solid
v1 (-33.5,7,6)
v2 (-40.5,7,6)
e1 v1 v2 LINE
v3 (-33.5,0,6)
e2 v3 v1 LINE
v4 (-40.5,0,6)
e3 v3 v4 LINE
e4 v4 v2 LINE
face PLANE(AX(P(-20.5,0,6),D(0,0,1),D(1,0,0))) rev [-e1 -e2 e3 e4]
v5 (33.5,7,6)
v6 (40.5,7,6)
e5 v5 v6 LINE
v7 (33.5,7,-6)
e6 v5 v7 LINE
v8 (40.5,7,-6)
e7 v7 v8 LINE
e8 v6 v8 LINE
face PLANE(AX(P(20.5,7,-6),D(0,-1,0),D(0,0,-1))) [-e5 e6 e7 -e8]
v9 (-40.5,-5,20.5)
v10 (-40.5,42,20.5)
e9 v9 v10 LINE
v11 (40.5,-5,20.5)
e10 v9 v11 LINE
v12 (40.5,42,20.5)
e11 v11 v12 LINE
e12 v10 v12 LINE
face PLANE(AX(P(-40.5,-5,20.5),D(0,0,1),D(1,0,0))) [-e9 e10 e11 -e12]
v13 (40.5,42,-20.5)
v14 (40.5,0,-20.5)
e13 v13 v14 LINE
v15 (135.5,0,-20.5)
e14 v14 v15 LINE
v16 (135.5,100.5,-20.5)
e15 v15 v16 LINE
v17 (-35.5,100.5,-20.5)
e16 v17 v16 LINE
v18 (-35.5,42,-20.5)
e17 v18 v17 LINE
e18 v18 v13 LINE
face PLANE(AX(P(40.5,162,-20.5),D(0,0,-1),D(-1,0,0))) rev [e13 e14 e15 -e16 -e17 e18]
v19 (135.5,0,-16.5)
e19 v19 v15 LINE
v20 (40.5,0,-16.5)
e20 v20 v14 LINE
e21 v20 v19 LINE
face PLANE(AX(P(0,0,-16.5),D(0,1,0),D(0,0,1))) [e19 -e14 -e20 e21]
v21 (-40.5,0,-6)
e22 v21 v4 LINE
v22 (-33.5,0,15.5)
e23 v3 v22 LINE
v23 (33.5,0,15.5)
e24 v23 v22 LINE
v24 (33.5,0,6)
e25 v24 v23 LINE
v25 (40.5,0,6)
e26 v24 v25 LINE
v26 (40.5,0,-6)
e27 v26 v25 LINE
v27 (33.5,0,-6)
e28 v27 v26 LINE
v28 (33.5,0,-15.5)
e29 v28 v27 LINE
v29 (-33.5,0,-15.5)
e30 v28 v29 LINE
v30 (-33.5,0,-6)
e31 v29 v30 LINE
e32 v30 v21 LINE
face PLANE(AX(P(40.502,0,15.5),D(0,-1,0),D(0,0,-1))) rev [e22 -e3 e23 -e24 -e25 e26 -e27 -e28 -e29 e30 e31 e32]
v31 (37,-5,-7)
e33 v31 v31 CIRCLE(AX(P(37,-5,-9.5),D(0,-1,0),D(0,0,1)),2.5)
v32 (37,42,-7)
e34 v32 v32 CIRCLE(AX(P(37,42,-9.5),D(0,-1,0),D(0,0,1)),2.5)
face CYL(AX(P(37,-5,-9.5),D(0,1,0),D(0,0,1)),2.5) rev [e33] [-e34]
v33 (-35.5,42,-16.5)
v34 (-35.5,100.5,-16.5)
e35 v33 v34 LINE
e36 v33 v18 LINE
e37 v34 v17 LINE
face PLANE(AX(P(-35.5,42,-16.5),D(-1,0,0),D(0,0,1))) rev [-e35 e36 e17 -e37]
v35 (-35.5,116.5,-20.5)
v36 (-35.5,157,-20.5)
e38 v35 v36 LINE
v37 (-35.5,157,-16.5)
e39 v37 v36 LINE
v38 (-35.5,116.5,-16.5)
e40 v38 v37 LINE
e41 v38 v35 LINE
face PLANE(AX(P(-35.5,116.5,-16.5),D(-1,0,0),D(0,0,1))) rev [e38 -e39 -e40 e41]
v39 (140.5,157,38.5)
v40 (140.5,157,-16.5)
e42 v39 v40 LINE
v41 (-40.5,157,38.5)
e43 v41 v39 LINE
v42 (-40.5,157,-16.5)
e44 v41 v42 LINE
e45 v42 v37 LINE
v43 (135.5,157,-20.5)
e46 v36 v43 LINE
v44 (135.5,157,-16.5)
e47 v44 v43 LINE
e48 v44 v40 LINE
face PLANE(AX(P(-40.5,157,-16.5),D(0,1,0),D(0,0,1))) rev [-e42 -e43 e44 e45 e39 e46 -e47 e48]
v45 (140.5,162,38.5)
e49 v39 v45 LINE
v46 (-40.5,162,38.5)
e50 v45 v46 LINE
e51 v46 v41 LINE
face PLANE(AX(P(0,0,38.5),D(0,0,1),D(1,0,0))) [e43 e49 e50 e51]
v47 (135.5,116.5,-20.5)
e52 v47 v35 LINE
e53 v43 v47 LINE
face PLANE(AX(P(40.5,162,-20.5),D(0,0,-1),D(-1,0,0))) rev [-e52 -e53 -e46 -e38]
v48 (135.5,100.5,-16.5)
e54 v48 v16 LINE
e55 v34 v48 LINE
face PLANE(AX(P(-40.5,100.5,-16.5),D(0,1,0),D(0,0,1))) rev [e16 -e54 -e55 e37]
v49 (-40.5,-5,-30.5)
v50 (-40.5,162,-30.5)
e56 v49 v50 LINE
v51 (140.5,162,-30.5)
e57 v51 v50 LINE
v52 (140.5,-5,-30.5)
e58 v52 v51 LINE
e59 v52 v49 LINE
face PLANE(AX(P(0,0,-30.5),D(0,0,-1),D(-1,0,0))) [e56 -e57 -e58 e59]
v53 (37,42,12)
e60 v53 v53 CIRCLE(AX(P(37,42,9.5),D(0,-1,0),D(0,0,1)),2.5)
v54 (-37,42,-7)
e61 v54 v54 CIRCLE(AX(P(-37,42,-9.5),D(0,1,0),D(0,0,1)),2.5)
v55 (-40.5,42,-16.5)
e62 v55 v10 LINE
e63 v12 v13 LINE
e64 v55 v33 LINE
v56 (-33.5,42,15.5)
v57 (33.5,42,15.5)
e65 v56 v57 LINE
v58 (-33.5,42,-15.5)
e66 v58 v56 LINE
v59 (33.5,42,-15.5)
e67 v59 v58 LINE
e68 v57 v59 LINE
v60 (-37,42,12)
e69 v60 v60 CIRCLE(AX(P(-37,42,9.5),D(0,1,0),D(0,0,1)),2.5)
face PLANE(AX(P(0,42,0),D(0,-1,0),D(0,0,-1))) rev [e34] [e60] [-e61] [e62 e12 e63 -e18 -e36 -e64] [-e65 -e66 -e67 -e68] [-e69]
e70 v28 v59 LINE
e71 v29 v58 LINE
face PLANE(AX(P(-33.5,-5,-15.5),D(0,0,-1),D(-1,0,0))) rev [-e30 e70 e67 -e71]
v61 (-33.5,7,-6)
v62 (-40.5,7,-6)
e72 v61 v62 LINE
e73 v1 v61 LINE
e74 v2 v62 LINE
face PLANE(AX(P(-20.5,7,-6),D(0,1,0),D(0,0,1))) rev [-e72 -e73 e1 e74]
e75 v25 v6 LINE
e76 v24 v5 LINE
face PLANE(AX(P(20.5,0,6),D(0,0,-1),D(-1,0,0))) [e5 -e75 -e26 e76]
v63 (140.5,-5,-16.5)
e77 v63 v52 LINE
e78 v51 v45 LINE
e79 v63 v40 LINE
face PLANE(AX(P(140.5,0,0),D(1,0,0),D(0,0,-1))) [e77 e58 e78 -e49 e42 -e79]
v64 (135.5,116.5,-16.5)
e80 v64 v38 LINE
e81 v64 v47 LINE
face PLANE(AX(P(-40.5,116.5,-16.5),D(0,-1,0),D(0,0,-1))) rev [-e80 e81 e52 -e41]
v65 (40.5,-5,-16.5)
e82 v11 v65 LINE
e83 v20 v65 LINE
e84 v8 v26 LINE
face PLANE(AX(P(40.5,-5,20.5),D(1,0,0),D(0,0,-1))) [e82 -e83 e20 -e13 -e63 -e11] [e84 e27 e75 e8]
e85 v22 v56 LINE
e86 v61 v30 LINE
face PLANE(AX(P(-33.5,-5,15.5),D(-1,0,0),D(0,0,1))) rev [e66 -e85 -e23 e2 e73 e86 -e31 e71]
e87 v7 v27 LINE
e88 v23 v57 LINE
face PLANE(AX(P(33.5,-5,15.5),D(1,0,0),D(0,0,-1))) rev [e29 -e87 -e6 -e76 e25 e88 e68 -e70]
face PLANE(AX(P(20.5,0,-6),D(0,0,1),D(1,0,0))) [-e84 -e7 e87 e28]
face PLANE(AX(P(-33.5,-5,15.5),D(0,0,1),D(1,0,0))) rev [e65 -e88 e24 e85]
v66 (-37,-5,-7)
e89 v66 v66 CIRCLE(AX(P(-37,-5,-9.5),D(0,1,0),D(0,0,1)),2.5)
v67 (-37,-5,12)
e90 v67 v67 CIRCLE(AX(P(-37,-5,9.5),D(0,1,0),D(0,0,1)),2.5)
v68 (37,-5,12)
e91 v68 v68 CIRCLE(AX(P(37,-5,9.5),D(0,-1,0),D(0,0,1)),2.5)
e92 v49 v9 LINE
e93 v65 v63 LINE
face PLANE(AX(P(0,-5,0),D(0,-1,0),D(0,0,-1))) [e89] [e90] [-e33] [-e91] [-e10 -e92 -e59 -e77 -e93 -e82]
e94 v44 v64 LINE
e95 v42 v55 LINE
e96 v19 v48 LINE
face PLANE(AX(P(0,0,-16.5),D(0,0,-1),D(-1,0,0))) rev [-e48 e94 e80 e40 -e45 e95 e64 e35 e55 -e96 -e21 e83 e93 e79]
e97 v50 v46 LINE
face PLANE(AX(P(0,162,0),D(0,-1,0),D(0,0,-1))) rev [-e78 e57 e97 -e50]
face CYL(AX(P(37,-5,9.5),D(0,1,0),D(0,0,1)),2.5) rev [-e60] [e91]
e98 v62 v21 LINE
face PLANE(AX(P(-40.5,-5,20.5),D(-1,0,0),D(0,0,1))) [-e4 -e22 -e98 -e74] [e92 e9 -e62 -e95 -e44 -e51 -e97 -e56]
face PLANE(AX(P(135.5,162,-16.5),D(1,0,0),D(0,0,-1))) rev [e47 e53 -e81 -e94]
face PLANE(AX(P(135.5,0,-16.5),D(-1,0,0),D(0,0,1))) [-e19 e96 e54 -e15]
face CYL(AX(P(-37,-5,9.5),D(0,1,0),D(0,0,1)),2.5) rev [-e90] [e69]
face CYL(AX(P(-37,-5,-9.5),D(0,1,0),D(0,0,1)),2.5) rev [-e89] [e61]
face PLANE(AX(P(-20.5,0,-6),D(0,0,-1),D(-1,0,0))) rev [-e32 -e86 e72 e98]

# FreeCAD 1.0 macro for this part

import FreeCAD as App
import Part
import Sketcher
from FreeCAD import Vector

doc = App.newDocument("Part")
body = doc.addObject("PartDesign::Body", "Body")

# Sketch on XZ plane
sketch1 = body.newObject("Sketcher::SketchObject", "Sketch")
sketch1.AttachmentSupport = (doc.getObject("XZ_Plane"), [""])
sketch1.MapMode = "FlatFace"
sketch1.addGeometry([
    Part.LineSegment(Vector(-40, -20, 0), Vector(-40, 20, 0)),  # 0
    Part.LineSegment(Vector(-40, 20, 0), Vector(40, 20, 0)),  # 1
    Part.LineSegment(Vector(40, 20, 0), Vector(40, -20, 0)),  # 2
    Part.LineSegment(Vector(40, -20, 0), Vector(-40, -20, 0)),  # 3
    Part.LineSegment(Vector(34, 16, 0), Vector(-34, 16, 0)),  # 4
    Part.LineSegment(Vector(-34, 16, 0), Vector(-34, -16, 0)),  # 5
    Part.LineSegment(Vector(-34, -16, 0), Vector(34, -16, 0)),  # 6
    Part.LineSegment(Vector(34, -16, 0), Vector(34, 16, 0)),  # 7
], False)
sketch1.addConstraint([
    Sketcher.Constraint("Coincident", 0, 2, 1, 1),
    Sketcher.Constraint("Coincident", 1, 2, 2, 1),
    Sketcher.Constraint("Coincident", 2, 2, 3, 1),
    Sketcher.Constraint("Coincident", 3, 2, 0, 1),
    Sketcher.Constraint("Coincident", 4, 2, 5, 1),
    Sketcher.Constraint("Coincident", 5, 2, 6, 1),
    Sketcher.Constraint("Coincident", 6, 2, 7, 1),
    Sketcher.Constraint("Coincident", 7, 2, 4, 1),
    Sketcher.Constraint("Vertical", 0),
    Sketcher.Constraint("Horizontal", 1),
    Sketcher.Constraint("Vertical", 2),
    Sketcher.Constraint("Horizontal", 3),
    Sketcher.Constraint("Horizontal", 4),
    Sketcher.Constraint("Vertical", 5),
    Sketcher.Constraint("Horizontal", 6),
    Sketcher.Constraint("Vertical", 7),
    Sketcher.Constraint("Symmetric", 0, 2, 2, 2, -1, 1),
    Sketcher.Constraint("Symmetric", 4, 2, 6, 2, -1, 1),
    Sketcher.Constraint("DistanceX", 1, 1, 1, 2, 81.0),
    Sketcher.Constraint("DistanceX", 4, 2, 4, 1, 67.0),
    Sketcher.Constraint("DistanceY", 0, 1, 0, 2, 41.0),
    Sketcher.Constraint("DistanceY", 5, 2, 5, 1, 31.0),
])
pad1 = body.newObject("PartDesign::Pad", "Pad")
pad1.Profile = sketch1
pad1.Type = "TwoLengths"
pad1.Length = 42
pad1.Length2 = 5
pad1.Reversed = True

# Sketch on YZ plane
sketch2 = body.newObject("Sketcher::SketchObject", "Sketch001")
sketch2.AttachmentSupport = (doc.getObject("YZ_Plane"), [""])
sketch2.MapMode = "FlatFace"
sketch2.AttachmentOffset = App.Placement(Vector(0, 0, -33.5), App.Rotation())
sketch2.addGeometry([
    Part.LineSegment(Vector(0, 16, 0), Vector(-5, 16, 0)),
    Part.LineSegment(Vector(-5, 16, 0), Vector(-5, -16, 0)),
    Part.LineSegment(Vector(-5, -16, 0), Vector(0, -16, 0)),
    Part.LineSegment(Vector(0, -16, 0), Vector(0, 16, 0)),
], False)
sketch2.addConstraint([
    Sketcher.Constraint("Coincident", 0, 2, 1, 1),
    Sketcher.Constraint("Coincident", 1, 2, 2, 1),
    Sketcher.Constraint("Coincident", 2, 2, 3, 1),
    Sketcher.Constraint("Coincident", 3, 2, 0, 1),
    Sketcher.Constraint("Horizontal", 0),
    Sketcher.Constraint("Vertical", 1),
    Sketcher.Constraint("Horizontal", 2),
    Sketcher.Constraint("Vertical", 3),
    Sketcher.Constraint("Symmetric", 2, 2, 3, 2, -1, 1),
    Sketcher.Constraint("DistanceX", 0, 2, 0, 1, 5.0),
    Sketcher.Constraint("DistanceY", 1, 2, 1, 1, 31.0),
])
pad2 = body.newObject("PartDesign::Pad", "Pad001")
pad2.Profile = sketch2
pad2.Type = "UpToFirst"

# Sketch on XZ plane
sketch3 = body.newObject("Sketcher::SketchObject", "Sketch002")
sketch3.AttachmentSupport = (doc.getObject("XZ_Plane"), [""])
sketch3.MapMode = "FlatFace"
sketch3.AttachmentOffset = App.Placement(Vector(0, 0, -42), App.Rotation())
sketch3.addGeometry([
    Part.Circle(Vector(-37, -9.5, 0), Vector(0, 0, 1), 2.5),
    Part.Circle(Vector(-37, 9.5, 0), Vector(0, 0, 1), 2.5),
], False)
sketch3.addConstraint([
    Sketcher.Constraint("Equal", 0, 1),
    Sketcher.Constraint("Symmetric", 0, 3, 1, 3, -1),
    Sketcher.Constraint("Diameter", 0, 5.0),
    Sketcher.Constraint("DistanceX", 0, 3, -1, 1, 37.0),
    Sketcher.Constraint("DistanceY", 0, 3, 1, 3, 19.0),
])
pocket1 = body.newObject("PartDesign::Pocket", "Pocket")
pocket1.Profile = sketch3
pocket1.Type = "ThroughAll"
pocket1.Reversed = True

# Sketch on YZ plane
sketch4 = body.newObject("Sketcher::SketchObject", "Sketch003")
sketch4.AttachmentSupport = (doc.getObject("YZ_Plane"), [""])
sketch4.MapMode = "FlatFace"
sketch4.AttachmentOffset = App.Placement(Vector(0, 0, -40.5), App.Rotation())
sketch4.addGeometry([
    Part.LineSegment(Vector(7, -6, 0), Vector(0, -6, 0)),
    Part.LineSegment(Vector(0, -6, 0), Vector(0, 6, 0)),
    Part.LineSegment(Vector(0, 6, 0), Vector(7, 6, 0)),
    Part.LineSegment(Vector(7, 6, 0), Vector(7, -6, 0)),
], False)
sketch4.addConstraint([
    Sketcher.Constraint("Coincident", 0, 2, 1, 1),
    Sketcher.Constraint("Coincident", 1, 2, 2, 1),
    Sketcher.Constraint("Coincident", 2, 2, 3, 1),
    Sketcher.Constraint("Coincident", 3, 2, 0, 1),
    Sketcher.Constraint("Horizontal", 0),
    Sketcher.Constraint("Vertical", 1),
    Sketcher.Constraint("Horizontal", 2),
    Sketcher.Constraint("Vertical", 3),
    Sketcher.Constraint("Symmetric", 0, 2, 1, 2, -1, 1),
    Sketcher.Constraint("DistanceX", 0, 2, 0, 1, 7.0),
    Sketcher.Constraint("DistanceY", 1, 1, 1, 2, 12.0),
])
pocket2 = body.newObject("PartDesign::Pocket", "Pocket001")
pocket2.Profile = sketch4
pocket2.Length = 20
pocket2.Reversed = True
doc.recompute()

mirrored = body.newObject("PartDesign::Mirrored", "Mirrored")
mirrored.Originals = [pocket1, pocket2]
mirrored.MirrorPlane = (doc.getObject("YZ_Plane"), [""])
body.Tip = mirrored

# Sketch on XY plane
sketch5 = body.newObject("Sketcher::SketchObject", "Sketch004")
sketch5.AttachmentSupport = (doc.getObject("XY_Plane"), [""])
sketch5.MapMode = "FlatFace"
sketch5.AttachmentOffset = App.Placement(Vector(0, 0, -20.5), App.Rotation())
sketch5.addGeometry([
    Part.LineSegment(Vector(40, 42, 0), Vector(40, -5, 0)),
    Part.LineSegment(Vector(40, -5, 0), Vector(-40, -5, 0)),
    Part.LineSegment(Vector(-40, -5, 0), Vector(-40, 42, 0)),
    Part.LineSegment(Vector(-40, 42, 0), Vector(40, 42, 0)),
], False)
sketch5.addConstraint([
    Sketcher.Constraint("Coincident", 0, 2, 1, 1),
    Sketcher.Constraint("Coincident", 1, 2, 2, 1),
    Sketcher.Constraint("Coincident", 2, 2, 3, 1),
    Sketcher.Constraint("Coincident", 3, 2, 0, 1),
    Sketcher.Constraint("Vertical", 0),
    Sketcher.Constraint("Horizontal", 1),
    Sketcher.Constraint("Vertical", 2),
    Sketcher.Constraint("Horizontal", 3),
    Sketcher.Constraint("DistanceX", 1, 2, 1, 1, 81.0),
    Sketcher.Constraint("DistanceY", 0, 2, 0, 1, 47.0),
    Sketcher.Constraint("DistanceY", 0, 2, -1, 1, 5.0),
    Sketcher.Constraint("DistanceX", -1, 1, 0, 2, 40.5),
])
pad3 = body.newObject("PartDesign::Pad", "Pad002")
pad3.Profile = sketch5
pad3.Length = 10
pad3.Reversed = True

# Sketch on XZ plane
sketch6 = body.newObject("Sketcher::SketchObject", "Sketch005")
sketch6.AttachmentSupport = (doc.getObject("XZ_Plane"), [""])
sketch6.MapMode = "FlatFace"
sketch6.AttachmentOffset = App.Placement(Vector(0, 0, -42), App.Rotation())
sketch6.addGeometry([
    Part.LineSegment(Vector(-40, -30, 0), Vector(-40, -20, 0)),
    Part.LineSegment(Vector(-40, -20, 0), Vector(40, -20, 0)),
    Part.LineSegment(Vector(40, -20, 0), Vector(40, -30, 0)),
    Part.LineSegment(Vector(40, -30, 0), Vector(-40, -30, 0)),
], False)
sketch6.addConstraint([
    Sketcher.Constraint("Coincident", 0, 2, 1, 1),
    Sketcher.Constraint("Coincident", 1, 2, 2, 1),
    Sketcher.Constraint("Coincident", 2, 2, 3, 1),
    Sketcher.Constraint("Coincident", 3, 2, 0, 1),
    Sketcher.Constraint("Vertical", 0),
    Sketcher.Constraint("Horizontal", 1),
    Sketcher.Constraint("Vertical", 2),
    Sketcher.Constraint("Horizontal", 3),
    Sketcher.Constraint("DistanceX", 1, 1, 1, 2, 81.0),
    Sketcher.Constraint("DistanceY", 0, 1, 0, 2, 10.0),
    Sketcher.Constraint("DistanceX", 0, 2, -1, 1, 40.5),
    Sketcher.Constraint("DistanceY", 0, 2, -1, 1, 20.5),
])
pad4 = body.newObject("PartDesign::Pad", "Pad003")
pad4.Profile = sketch6
pad4.Length = 120
pad4.Reversed = True

# Sketch on YZ plane
sketch7 = body.newObject("Sketcher::SketchObject", "Sketch006")
sketch7.AttachmentSupport = (doc.getObject("YZ_Plane"), [""])
sketch7.MapMode = "FlatFace"
sketch7.AttachmentOffset = App.Placement(Vector(0, 0, 40.5), App.Rotation())
sketch7.addGeometry([
    Part.LineSegment(Vector(162, -20, 0), Vector(-5, -20, 0)),
    Part.LineSegment(Vector(-5, -20, 0), Vector(-5, -30, 0)),
    Part.LineSegment(Vector(-5, -30, 0), Vector(162, -30, 0)),
    Part.LineSegment(Vector(162, -30, 0), Vector(162, -20, 0)),
], False)
sketch7.addConstraint([
    Sketcher.Constraint("Coincident", 0, 2, 1, 1),
    Sketcher.Constraint("Coincident", 1, 2, 2, 1),
    Sketcher.Constraint("Coincident", 2, 2, 3, 1),
    Sketcher.Constraint("Coincident", 3, 2, 0, 1),
    Sketcher.Constraint("Horizontal", 0),
    Sketcher.Constraint("Vertical", 1),
    Sketcher.Constraint("Horizontal", 2),
    Sketcher.Constraint("Vertical", 3),
    Sketcher.Constraint("DistanceX", 0, 2, 0, 1, 167.0),
    Sketcher.Constraint("DistanceY", 1, 2, 1, 1, 10.0),
    Sketcher.Constraint("DistanceX", 0, 2, -1, 1, 5.0),
    Sketcher.Constraint("DistanceY", 0, 2, -1, 1, 20.5),
])
pad5 = body.newObject("PartDesign::Pad", "Pad004")
pad5.Profile = sketch7
pad5.Length = 100

# Sketch on XY plane
sketch8 = body.newObject("Sketcher::SketchObject", "Sketch007")
sketch8.AttachmentSupport = (doc.getObject("XY_Plane"), [""])
sketch8.MapMode = "FlatFace"
sketch8.AttachmentOffset = App.Placement(Vector(0, 0, -20.5), App.Rotation())
sketch8.addGeometry([
    Part.LineSegment(Vector(-40, 116, 0), Vector(-40, 100, 0)),
    Part.LineSegment(Vector(-40, 100, 0), Vector(140, 100, 0)),
    Part.LineSegment(Vector(140, 100, 0), Vector(140, 116, 0)),
    Part.LineSegment(Vector(140, 116, 0), Vector(-40, 116, 0)),
], False)
sketch8.addConstraint([
    Sketcher.Constraint("Coincident", 0, 2, 1, 1),
    Sketcher.Constraint("Coincident", 1, 2, 2, 1),
    Sketcher.Constraint("Coincident", 2, 2, 3, 1),
    Sketcher.Constraint("Coincident", 3, 2, 0, 1),
    Sketcher.Constraint("Vertical", 0),
    Sketcher.Constraint("Horizontal", 1),
    Sketcher.Constraint("Vertical", 2),
    Sketcher.Constraint("Horizontal", 3),
    Sketcher.Constraint("DistanceX", 1, 1, 1, 2, 181.0),
    Sketcher.Constraint("DistanceY", 0, 2, 0, 1, 16.0),
    Sketcher.Constraint("DistanceX", 0, 2, -1, 1, 40.5),
    Sketcher.Constraint("DistanceY", -1, 1, 0, 2, 100.5),
])
pad6 = body.newObject("PartDesign::Pad", "Pad005")
pad6.Profile = sketch8
pad6.Length = 4

# Sketch on XY plane
sketch9 = body.newObject("Sketcher::SketchObject", "Sketch008")
sketch9.AttachmentSupport = (doc.getObject("XY_Plane"), [""])
sketch9.MapMode = "FlatFace"
sketch9.AttachmentOffset = App.Placement(Vector(0, 0, -20.5), App.Rotation())
sketch9.addGeometry([
    Part.LineSegment(Vector(40, 0, 0), Vector(40, -5, 0)),  # 0
    Part.LineSegment(Vector(40, -5, 0), Vector(140, -5, 0)),  # 1
    Part.LineSegment(Vector(140, -5, 0), Vector(140, 100, 0)),  # 2
    Part.LineSegment(Vector(140, 100, 0), Vector(136, 100, 0)),  # 3
    Part.LineSegment(Vector(136, 100, 0), Vector(136, 0, 0)),  # 4
    Part.LineSegment(Vector(136, 0, 0), Vector(40, 0, 0)),  # 5
    Part.LineSegment(Vector(-40, 162, 0), Vector(-40, 116, 0)),  # 6
    Part.LineSegment(Vector(-40, 116, 0), Vector(-36, 116, 0)),  # 7
    Part.LineSegment(Vector(-36, 116, 0), Vector(-36, 157, 0)),  # 8
    Part.LineSegment(Vector(-36, 157, 0), Vector(136, 157, 0)),  # 9
    Part.LineSegment(Vector(136, 157, 0), Vector(136, 116, 0)),  # 10
    Part.LineSegment(Vector(136, 116, 0), Vector(140, 116, 0)),  # 11
    Part.LineSegment(Vector(140, 116, 0), Vector(140, 162, 0)),  # 12
    Part.LineSegment(Vector(140, 162, 0), Vector(-40, 162, 0)),  # 13
    Part.LineSegment(Vector(-40, 100, 0), Vector(-40, 42, 0)),  # 14
    Part.LineSegment(Vector(-40, 42, 0), Vector(-36, 42, 0)),  # 15
    Part.LineSegment(Vector(-36, 42, 0), Vector(-36, 100, 0)),  # 16
    Part.LineSegment(Vector(-36, 100, 0), Vector(-40, 100, 0)),  # 17
], False)
sketch9.addConstraint([
    Sketcher.Constraint("Coincident", 0, 2, 1, 1),
    Sketcher.Constraint("Coincident", 1, 2, 2, 1),
    Sketcher.Constraint("Coincident", 2, 2, 3, 1),
    Sketcher.Constraint("Coincident", 3, 2, 4, 1),
    Sketcher.Constraint("Coincident", 4, 2, 5, 1),
    Sketcher.Constraint("Coincident", 5, 2, 0, 1),
    Sketcher.Constraint("Coincident", 6, 2, 7, 1),
    Sketcher.Constraint("Coincident", 7, 2, 8, 1),
    Sketcher.Constraint("Coincident", 8, 2, 9, 1),
    Sketcher.Constraint("Coincident", 9, 2, 10, 1),
    Sketcher.Constraint("Coincident", 10, 2, 11, 1),
    Sketcher.Constraint("Coincident", 11, 2, 12, 1),
    Sketcher.Constraint("Coincident", 12, 2, 13, 1),
    Sketcher.Constraint("Coincident", 13, 2, 6, 1),
    Sketcher.Constraint("Coincident", 14, 2, 15, 1),
    Sketcher.Constraint("Coincident", 15, 2, 16, 1),
    Sketcher.Constraint("Coincident", 16, 2, 17, 1),
    Sketcher.Constraint("Coincident", 17, 2, 14, 1),
    Sketcher.Constraint("Vertical", 0),
    Sketcher.Constraint("Horizontal", 1),
    Sketcher.Constraint("Vertical", 2),
    Sketcher.Constraint("Horizontal", 3),
    Sketcher.Constraint("Vertical", 4),
    Sketcher.Constraint("Horizontal", 5),
    Sketcher.Constraint("Vertical", 6),
    Sketcher.Constraint("Horizontal", 7),
    Sketcher.Constraint("Vertical", 8),
    Sketcher.Constraint("Horizontal", 9),
    Sketcher.Constraint("Vertical", 10),
    Sketcher.Constraint("Horizontal", 11),
    Sketcher.Constraint("Vertical", 12),
    Sketcher.Constraint("Horizontal", 13),
    Sketcher.Constraint("Vertical", 14),
    Sketcher.Constraint("Horizontal", 15),
    Sketcher.Constraint("Vertical", 16),
    Sketcher.Constraint("Horizontal", 17),
    Sketcher.Constraint("PointOnObject", 4, 2, -1),
    Sketcher.Constraint("Horizontal", 7, 2, 10, 2),
    Sketcher.Constraint("Horizontal", 3, 2, 16, 2),
    Sketcher.Constraint("Vertical", 4, 2, 9, 2),
    Sketcher.Constraint("Vertical", 2, 2, 11, 2),
    Sketcher.Constraint("Vertical", 13, 2, 14, 2),
    Sketcher.Constraint("Vertical", 8, 2, 15, 2),
    Sketcher.Constraint("Equal", 3, 7),
    Sketcher.Constraint("Equal", 17, 0),
    Sketcher.Constraint("DistanceX", 1, 1, 1, 2, 100.0),
    Sketcher.Constraint("DistanceX", 3, 2, 3, 1, 5.0),
    Sketcher.Constraint("DistanceX", 9, 1, 9, 2, 171.0),
    Sketcher.Constraint("DistanceY", 2, 1, 2, 2, 105.5),
    Sketcher.Constraint("DistanceY", 6, 2, 6, 1, 45.5),
    Sketcher.Constraint("DistanceY", 8, 1, 8, 2, 40.5),
    Sketcher.Constraint("DistanceY", 14, 2, 14, 1, 58.5),
    Sketcher.Constraint("DistanceY", -1, 1, 8, 2, 157.0),
    Sketcher.Constraint("DistanceX", -1, 1, 0, 2, 40.5),
])
pad7 = body.newObject("PartDesign::Pad", "Pad006")
pad7.Profile = sketch9
pad7.Length = 4

# Sketch on XY plane
sketch10 = body.newObject("Sketcher::SketchObject", "Sketch009")
sketch10.AttachmentSupport = (doc.getObject("XY_Plane"), [""])
sketch10.MapMode = "FlatFace"
sketch10.AttachmentOffset = App.Placement(Vector(0, 0, -16.5), App.Rotation())
sketch10.addGeometry([
    Part.LineSegment(Vector(-40, 162, 0), Vector(-40, 157, 0)),
    Part.LineSegment(Vector(-40, 157, 0), Vector(140, 157, 0)),
    Part.LineSegment(Vector(140, 157, 0), Vector(140, 162, 0)),
    Part.LineSegment(Vector(140, 162, 0), Vector(-40, 162, 0)),
], False)
sketch10.addConstraint([
    Sketcher.Constraint("Coincident", 0, 2, 1, 1),
    Sketcher.Constraint("Coincident", 1, 2, 2, 1),
    Sketcher.Constraint("Coincident", 2, 2, 3, 1),
    Sketcher.Constraint("Coincident", 3, 2, 0, 1),
    Sketcher.Constraint("Vertical", 0),
    Sketcher.Constraint("Horizontal", 1),
    Sketcher.Constraint("Vertical", 2),
    Sketcher.Constraint("Horizontal", 3),
    Sketcher.Constraint("DistanceX", 1, 1, 1, 2, 181.0),
    Sketcher.Constraint("DistanceY", 0, 2, 0, 1, 5.0),
    Sketcher.Constraint("DistanceY", -1, 1, 0, 2, 157.0),
    Sketcher.Constraint("DistanceX", 0, 2, -1, 1, 40.5),
])
pad8 = body.newObject("PartDesign::Pad", "Pad007")
pad8.Profile = sketch10
pad8.Length = 55

doc.recompute()
